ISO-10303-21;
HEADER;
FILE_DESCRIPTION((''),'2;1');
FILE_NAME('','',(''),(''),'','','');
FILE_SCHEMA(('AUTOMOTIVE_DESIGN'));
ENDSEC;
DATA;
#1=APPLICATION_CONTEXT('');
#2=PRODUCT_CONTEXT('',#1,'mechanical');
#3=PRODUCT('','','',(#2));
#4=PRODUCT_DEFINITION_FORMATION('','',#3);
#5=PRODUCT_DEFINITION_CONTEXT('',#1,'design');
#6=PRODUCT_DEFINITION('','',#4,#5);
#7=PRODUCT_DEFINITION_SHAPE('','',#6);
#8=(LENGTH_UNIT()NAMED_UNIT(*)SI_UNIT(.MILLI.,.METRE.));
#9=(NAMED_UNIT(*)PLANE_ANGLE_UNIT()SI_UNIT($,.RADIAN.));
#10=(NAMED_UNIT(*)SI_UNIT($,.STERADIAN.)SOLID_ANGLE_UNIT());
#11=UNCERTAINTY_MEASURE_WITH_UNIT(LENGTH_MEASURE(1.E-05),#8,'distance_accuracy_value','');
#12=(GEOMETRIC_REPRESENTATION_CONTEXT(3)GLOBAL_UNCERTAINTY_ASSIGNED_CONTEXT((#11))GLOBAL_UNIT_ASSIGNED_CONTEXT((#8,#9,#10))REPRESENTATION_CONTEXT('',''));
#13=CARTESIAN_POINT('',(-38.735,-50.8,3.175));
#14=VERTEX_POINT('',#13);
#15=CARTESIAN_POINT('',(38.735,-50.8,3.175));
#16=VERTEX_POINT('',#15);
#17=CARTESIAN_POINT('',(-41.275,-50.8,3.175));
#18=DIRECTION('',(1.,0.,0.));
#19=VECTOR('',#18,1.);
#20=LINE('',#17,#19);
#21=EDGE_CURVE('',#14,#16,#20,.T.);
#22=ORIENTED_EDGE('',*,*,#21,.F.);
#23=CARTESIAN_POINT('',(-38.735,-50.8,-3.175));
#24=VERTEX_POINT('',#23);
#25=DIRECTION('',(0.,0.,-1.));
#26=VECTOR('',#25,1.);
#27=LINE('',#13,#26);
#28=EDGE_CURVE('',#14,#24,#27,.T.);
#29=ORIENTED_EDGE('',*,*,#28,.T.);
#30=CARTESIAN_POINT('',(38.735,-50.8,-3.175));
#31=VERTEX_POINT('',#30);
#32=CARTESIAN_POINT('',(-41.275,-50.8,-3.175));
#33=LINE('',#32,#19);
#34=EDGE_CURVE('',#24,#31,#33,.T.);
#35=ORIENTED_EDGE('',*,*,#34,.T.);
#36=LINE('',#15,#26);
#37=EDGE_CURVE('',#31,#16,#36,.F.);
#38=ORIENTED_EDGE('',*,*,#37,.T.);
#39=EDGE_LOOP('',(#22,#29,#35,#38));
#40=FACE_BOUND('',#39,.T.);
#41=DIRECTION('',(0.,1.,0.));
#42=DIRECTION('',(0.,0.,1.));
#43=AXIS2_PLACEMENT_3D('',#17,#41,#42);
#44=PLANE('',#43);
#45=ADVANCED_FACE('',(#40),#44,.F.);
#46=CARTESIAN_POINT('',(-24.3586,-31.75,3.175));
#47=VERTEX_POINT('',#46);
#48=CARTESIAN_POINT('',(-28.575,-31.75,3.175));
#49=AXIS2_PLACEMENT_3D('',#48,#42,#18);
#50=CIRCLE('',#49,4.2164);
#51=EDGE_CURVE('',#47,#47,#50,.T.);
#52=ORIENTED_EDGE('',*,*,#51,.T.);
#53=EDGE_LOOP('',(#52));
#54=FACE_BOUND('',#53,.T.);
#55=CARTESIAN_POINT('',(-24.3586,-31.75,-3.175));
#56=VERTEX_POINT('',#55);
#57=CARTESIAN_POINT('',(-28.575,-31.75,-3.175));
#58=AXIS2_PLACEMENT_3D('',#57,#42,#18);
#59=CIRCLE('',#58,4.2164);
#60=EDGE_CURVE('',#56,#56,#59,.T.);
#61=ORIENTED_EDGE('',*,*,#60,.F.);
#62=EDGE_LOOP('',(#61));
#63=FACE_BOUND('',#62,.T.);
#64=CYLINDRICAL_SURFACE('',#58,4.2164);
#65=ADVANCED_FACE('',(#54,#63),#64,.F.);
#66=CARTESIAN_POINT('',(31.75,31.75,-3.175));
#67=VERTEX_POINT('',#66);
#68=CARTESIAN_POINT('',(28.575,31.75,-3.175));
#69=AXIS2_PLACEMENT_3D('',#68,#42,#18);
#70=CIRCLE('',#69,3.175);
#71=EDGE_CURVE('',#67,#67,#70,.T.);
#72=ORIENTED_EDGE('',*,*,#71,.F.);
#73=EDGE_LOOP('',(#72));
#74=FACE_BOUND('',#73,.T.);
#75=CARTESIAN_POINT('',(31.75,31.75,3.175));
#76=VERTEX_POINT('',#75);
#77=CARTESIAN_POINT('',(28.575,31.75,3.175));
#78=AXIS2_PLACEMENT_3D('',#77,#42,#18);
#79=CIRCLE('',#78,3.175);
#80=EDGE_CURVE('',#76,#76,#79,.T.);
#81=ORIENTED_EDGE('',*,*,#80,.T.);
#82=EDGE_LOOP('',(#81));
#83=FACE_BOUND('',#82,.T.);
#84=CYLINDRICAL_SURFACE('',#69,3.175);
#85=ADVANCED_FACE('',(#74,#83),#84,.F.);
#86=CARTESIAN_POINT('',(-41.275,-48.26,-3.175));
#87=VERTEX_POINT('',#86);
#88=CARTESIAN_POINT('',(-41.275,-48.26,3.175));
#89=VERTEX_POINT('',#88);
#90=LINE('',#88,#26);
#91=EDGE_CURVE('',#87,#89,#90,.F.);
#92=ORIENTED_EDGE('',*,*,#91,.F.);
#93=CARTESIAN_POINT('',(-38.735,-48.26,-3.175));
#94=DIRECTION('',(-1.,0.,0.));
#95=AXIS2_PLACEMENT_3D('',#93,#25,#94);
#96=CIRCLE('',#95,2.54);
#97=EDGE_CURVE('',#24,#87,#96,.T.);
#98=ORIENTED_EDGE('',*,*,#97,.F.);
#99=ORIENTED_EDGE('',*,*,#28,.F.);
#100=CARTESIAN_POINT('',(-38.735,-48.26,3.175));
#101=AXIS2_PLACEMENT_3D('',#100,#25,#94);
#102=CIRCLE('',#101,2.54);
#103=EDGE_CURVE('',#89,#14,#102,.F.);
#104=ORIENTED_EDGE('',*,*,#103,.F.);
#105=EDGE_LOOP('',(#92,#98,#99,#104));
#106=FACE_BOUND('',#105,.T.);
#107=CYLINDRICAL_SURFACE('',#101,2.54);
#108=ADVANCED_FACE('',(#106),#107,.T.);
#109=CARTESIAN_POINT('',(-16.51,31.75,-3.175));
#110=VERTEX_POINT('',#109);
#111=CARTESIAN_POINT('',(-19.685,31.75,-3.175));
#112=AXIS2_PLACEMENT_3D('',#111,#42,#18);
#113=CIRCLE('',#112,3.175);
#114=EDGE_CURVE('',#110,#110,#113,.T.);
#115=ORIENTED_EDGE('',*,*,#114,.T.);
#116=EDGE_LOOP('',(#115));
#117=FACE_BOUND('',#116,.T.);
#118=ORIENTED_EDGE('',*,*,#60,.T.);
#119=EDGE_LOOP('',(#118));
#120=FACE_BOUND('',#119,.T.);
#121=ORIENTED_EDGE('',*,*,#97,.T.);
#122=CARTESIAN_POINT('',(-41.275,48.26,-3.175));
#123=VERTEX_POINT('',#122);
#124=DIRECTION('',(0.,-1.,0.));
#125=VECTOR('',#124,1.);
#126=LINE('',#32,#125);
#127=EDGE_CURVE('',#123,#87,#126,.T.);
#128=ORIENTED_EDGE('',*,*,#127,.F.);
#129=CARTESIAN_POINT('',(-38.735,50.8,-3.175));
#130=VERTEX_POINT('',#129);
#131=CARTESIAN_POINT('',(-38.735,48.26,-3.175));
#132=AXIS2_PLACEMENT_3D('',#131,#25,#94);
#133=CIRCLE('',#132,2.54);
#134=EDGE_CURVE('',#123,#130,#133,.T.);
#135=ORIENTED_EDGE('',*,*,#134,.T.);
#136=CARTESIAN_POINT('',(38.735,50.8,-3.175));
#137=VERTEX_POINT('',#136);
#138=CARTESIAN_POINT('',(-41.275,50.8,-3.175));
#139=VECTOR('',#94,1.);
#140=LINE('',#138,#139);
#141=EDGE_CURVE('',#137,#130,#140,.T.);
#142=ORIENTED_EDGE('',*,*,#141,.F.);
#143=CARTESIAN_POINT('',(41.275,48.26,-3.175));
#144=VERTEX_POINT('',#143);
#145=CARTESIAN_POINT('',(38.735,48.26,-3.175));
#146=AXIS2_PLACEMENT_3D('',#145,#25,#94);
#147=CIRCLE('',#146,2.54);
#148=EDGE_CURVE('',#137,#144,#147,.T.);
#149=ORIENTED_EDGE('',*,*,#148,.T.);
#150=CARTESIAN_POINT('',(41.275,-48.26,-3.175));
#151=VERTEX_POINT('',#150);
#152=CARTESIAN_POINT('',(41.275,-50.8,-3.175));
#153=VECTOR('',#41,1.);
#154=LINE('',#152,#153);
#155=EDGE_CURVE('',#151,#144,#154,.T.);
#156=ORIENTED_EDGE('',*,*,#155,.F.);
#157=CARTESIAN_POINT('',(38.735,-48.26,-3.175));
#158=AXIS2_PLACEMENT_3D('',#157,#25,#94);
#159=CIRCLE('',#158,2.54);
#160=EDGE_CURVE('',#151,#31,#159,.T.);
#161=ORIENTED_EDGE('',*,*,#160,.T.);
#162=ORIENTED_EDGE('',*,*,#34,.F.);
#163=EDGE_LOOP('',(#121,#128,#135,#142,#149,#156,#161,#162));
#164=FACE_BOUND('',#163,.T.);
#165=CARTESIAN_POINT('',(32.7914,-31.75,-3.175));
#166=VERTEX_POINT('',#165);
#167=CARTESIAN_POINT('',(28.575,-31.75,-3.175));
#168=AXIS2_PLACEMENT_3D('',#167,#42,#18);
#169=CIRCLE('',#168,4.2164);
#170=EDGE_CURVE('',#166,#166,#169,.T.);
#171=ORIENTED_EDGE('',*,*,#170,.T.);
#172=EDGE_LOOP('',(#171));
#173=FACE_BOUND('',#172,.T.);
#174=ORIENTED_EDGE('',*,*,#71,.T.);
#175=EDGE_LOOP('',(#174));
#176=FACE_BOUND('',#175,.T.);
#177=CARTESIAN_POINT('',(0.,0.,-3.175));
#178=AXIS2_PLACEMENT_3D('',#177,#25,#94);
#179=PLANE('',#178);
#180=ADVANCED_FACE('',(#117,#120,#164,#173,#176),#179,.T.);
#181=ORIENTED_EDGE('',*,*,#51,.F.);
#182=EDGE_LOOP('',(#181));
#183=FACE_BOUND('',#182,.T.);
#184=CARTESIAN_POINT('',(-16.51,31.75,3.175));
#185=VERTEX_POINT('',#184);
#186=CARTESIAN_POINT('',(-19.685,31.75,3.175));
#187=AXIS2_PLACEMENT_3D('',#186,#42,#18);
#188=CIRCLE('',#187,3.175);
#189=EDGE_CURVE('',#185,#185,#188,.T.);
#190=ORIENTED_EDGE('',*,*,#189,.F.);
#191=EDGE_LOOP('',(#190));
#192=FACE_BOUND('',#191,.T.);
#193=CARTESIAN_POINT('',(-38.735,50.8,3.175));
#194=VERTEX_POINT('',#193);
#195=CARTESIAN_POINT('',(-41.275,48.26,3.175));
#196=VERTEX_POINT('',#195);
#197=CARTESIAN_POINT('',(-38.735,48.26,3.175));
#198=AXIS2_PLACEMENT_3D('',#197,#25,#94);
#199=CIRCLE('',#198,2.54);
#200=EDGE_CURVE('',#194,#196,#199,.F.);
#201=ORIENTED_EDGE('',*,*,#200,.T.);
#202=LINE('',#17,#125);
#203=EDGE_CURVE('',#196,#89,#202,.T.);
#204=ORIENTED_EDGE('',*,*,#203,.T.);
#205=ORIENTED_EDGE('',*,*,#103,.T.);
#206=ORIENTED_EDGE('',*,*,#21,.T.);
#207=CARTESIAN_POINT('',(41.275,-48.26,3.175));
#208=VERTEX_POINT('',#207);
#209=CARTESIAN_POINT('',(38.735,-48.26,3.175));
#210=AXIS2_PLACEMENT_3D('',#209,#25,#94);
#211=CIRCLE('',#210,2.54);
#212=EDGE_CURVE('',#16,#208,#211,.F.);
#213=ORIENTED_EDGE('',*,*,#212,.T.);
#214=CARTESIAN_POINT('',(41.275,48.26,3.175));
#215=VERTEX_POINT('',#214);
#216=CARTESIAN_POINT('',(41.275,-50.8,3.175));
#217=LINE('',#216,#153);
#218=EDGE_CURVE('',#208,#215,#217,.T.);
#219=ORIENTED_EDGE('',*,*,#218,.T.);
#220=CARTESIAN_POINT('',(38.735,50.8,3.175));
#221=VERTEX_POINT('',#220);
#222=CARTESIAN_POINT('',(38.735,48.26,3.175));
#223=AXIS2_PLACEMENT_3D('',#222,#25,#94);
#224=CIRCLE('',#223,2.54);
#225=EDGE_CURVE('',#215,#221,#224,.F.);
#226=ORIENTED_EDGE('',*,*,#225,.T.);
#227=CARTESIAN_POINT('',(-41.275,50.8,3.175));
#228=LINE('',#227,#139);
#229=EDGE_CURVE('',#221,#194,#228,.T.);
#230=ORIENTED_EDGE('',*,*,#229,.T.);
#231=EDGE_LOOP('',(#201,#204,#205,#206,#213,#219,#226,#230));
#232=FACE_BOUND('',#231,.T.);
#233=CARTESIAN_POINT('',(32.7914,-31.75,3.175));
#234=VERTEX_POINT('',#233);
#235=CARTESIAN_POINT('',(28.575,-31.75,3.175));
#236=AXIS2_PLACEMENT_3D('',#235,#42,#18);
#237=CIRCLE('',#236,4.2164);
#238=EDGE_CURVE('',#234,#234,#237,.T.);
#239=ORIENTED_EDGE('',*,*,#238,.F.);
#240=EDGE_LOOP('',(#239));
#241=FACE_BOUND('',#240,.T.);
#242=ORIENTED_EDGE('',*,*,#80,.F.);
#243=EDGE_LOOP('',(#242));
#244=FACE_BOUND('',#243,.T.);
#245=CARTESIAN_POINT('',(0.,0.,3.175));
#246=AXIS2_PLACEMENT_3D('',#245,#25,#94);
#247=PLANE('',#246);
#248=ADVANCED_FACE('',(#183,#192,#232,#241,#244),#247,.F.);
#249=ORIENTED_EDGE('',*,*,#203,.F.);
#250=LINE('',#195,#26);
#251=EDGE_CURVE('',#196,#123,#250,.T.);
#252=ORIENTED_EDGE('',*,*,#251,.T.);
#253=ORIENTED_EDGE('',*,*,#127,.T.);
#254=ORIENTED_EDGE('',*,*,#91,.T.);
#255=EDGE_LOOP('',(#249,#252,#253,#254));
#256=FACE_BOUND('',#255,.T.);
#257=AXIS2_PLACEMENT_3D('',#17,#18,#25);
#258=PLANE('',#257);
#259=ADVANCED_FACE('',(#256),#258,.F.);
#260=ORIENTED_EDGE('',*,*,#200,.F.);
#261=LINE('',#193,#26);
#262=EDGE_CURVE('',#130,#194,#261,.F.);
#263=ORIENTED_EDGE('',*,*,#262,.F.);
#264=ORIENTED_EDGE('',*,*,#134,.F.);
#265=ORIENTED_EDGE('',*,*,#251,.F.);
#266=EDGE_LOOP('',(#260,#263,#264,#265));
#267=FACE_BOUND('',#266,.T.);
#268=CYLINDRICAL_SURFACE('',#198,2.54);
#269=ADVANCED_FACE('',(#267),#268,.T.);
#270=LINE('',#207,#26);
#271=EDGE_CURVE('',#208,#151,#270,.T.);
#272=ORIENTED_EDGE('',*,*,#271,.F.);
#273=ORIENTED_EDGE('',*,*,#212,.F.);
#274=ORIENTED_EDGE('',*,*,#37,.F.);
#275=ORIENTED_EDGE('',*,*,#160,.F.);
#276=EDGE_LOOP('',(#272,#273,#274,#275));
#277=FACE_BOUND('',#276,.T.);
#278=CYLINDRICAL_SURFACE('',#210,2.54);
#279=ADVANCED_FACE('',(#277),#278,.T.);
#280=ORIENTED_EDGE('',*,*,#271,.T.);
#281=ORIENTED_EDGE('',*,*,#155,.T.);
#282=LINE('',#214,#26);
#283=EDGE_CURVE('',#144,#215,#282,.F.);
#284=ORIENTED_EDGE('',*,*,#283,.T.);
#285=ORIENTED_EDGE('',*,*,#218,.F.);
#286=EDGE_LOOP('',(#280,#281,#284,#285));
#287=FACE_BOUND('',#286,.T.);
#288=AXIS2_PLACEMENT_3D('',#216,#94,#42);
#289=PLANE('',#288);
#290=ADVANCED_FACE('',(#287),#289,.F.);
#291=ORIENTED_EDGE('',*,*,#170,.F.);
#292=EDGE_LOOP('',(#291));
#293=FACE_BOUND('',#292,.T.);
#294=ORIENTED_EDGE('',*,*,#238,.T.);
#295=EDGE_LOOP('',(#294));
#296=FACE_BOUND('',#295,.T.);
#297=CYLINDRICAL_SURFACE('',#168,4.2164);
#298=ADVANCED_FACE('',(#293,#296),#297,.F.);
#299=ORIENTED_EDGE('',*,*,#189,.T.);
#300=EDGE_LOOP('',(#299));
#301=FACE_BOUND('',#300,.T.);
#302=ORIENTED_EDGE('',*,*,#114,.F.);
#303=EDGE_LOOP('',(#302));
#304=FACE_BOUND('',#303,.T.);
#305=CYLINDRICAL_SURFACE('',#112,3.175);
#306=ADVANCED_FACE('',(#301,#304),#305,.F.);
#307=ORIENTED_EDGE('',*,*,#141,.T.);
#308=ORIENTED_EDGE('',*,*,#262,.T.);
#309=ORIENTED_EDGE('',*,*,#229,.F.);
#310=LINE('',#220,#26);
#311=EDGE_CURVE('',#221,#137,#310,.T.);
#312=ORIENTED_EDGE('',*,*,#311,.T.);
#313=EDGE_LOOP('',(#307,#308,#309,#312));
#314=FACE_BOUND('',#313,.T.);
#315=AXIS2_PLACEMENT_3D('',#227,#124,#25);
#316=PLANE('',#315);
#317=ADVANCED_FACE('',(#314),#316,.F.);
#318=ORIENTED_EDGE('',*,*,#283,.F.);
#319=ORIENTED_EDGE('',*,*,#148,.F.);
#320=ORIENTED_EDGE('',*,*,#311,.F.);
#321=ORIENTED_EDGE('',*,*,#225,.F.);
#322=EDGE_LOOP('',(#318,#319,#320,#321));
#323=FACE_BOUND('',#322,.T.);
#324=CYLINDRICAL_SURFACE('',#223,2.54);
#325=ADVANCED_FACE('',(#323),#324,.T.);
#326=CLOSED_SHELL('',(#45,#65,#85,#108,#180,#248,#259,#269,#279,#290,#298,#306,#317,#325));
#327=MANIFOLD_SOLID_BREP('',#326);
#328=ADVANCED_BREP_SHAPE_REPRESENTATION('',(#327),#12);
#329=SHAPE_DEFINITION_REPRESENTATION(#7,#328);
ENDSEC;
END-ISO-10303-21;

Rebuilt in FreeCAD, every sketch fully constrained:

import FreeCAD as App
import Part
import Sketcher

V = App.Vector
Q = App.Units.Quantity


def edges_at(feature, points):
    """Names of the edges that pass closest to the given points."""
    edges = feature.Shape.Edges
    near = lambda p: min(range(len(edges)), key=lambda i: edges[i].distToShape(Part.Vertex(*p))[0])
    return sorted({f"Edge{near(p) + 1}" for p in points})


def add_polygon(sketch, points):
    """Adds a closed chain of lines whose ends are joined by coincident constraints."""
    first, n = sketch.GeometryCount, len(points)
    for a, b in zip(points, points[1:] + points[:1]):
        sketch.addGeometry(Part.LineSegment(App.Vector(*a, 0), App.Vector(*b, 0)), False)
    for i in range(n):
        sketch.addConstraint(Sketcher.Constraint("Coincident", first + i, 2, first + (i + 1) % n, 1))

doc = App.newDocument("Part")
params = doc.addObject("Spreadsheet::Sheet", "Params")
for row, (alias, value) in enumerate([
    ("sketch1_height", "4 in"),
    ("sketch1_width", "3.25 in"),
    ("pad1_length", "0.25 in"),
    ("sketch2_diameter", "0.25 in"),
    ("sketch2_diameter2", "0.332 in"),
    ("fillet_radius", "0.1 in"),
], start=1):
    params.set(f"A{row}", alias)
    params.set(f"B{row}", "=" + value)
    params.setAlias(f"B{row}", alias)

body = doc.addObject("PartDesign::Body", "Body")

sketch1 = body.newObject("Sketcher::SketchObject", "Sketch")
sketch1.AttachmentSupport = (doc.getObject("XY_Plane"), [""])
sketch1.MapMode = "FlatFace"
add_polygon(sketch1, [(-41, 51), (-41, -51), (41, -51), (41, 51)])
sketch1.addConstraint([
    Sketcher.Constraint("Vertical", 0),
    Sketcher.Constraint("Horizontal", 1),
    Sketcher.Constraint("Vertical", 2),
    Sketcher.Constraint("Horizontal", 3),
    Sketcher.Constraint("Symmetric", 0, 2, 2, 2, -1, 1),
    Sketcher.Constraint("DistanceY", 0, 2, 0, 1, Q("4 in")),
    Sketcher.Constraint("DistanceX", 1, 1, 1, 2, Q("3.25 in")),
])
sketch1.setExpression("Constraints[9]", "Params.sketch1_height")
sketch1.setExpression("Constraints[10]", "Params.sketch1_width")
pad1 = body.newObject("PartDesign::Pad", "Pad")
pad1.Profile = sketch1
pad1.setExpression("Length", "Params.pad1_length")
pad1.Midplane = True

sketch2 = body.newObject("Sketcher::SketchObject", "Sketch001")
sketch2.AttachmentSupport = (doc.getObject("XY_Plane"), [""])
sketch2.MapMode = "FlatFace"
sketch2.AttachmentOffset = App.Placement(V(0, 0, 0.125 * 25.4), App.Rotation())
sketch2.addGeometry([
    Part.Circle(V(-19.7, 31.8, 0), V(0, 0, 1), 3.2),
    Part.Circle(V(28.6, -31.8, 0), V(0, 0, 1), 4.2),
    Part.Circle(V(-28.6, -31.8, 0), V(0, 0, 1), 4.2),
    Part.Circle(V(28.6, 31.8, 0), V(0, 0, 1), 3.2),
], False)
sketch2.addConstraint([
    Sketcher.Constraint("Equal", 1, 2),
    Sketcher.Constraint("Equal", 0, 3),
    Sketcher.Constraint("Symmetric", 2, 3, 3, 3, -1, 1),
    Sketcher.Constraint("Symmetric", 1, 3, 2, 3, -2),
    Sketcher.Constraint("Horizontal", 0, 3, 3, 3),
    Sketcher.Constraint("Diameter", 0, Q("0.25 in")),
    Sketcher.Constraint("Diameter", 1, Q("0.332 in")),
    Sketcher.Constraint("DistanceX", 0, 3, 1, 3, Q("1.9 in")),
    Sketcher.Constraint("DistanceY", 1, 3, 0, 3, Q("2.5 in")),
    Sketcher.Constraint("DistanceX", 2, 3, 1, 3, Q("2.25 in")),
])
sketch2.setExpression("Constraints[5]", "Params.sketch2_diameter")
sketch2.setExpression("Constraints[6]", "Params.sketch2_diameter2")
pocket1 = body.newObject("PartDesign::Pocket", "Pocket")
pocket1.Profile = sketch2
pocket1.Type = "ThroughAll"
doc.recompute()

fillet = body.newObject("PartDesign::Fillet", "Fillet")
fillet.Base = (pocket1, edges_at(pocket1, [
    (41.275, -50.8, 0),
    (-41.275, -50.8, 0),
    (-41.275, 50.8, 0),
    (41.275, 50.8, 0),
]))
fillet.setExpression("Radius", "Params.fillet_radius")

doc.recompute()
